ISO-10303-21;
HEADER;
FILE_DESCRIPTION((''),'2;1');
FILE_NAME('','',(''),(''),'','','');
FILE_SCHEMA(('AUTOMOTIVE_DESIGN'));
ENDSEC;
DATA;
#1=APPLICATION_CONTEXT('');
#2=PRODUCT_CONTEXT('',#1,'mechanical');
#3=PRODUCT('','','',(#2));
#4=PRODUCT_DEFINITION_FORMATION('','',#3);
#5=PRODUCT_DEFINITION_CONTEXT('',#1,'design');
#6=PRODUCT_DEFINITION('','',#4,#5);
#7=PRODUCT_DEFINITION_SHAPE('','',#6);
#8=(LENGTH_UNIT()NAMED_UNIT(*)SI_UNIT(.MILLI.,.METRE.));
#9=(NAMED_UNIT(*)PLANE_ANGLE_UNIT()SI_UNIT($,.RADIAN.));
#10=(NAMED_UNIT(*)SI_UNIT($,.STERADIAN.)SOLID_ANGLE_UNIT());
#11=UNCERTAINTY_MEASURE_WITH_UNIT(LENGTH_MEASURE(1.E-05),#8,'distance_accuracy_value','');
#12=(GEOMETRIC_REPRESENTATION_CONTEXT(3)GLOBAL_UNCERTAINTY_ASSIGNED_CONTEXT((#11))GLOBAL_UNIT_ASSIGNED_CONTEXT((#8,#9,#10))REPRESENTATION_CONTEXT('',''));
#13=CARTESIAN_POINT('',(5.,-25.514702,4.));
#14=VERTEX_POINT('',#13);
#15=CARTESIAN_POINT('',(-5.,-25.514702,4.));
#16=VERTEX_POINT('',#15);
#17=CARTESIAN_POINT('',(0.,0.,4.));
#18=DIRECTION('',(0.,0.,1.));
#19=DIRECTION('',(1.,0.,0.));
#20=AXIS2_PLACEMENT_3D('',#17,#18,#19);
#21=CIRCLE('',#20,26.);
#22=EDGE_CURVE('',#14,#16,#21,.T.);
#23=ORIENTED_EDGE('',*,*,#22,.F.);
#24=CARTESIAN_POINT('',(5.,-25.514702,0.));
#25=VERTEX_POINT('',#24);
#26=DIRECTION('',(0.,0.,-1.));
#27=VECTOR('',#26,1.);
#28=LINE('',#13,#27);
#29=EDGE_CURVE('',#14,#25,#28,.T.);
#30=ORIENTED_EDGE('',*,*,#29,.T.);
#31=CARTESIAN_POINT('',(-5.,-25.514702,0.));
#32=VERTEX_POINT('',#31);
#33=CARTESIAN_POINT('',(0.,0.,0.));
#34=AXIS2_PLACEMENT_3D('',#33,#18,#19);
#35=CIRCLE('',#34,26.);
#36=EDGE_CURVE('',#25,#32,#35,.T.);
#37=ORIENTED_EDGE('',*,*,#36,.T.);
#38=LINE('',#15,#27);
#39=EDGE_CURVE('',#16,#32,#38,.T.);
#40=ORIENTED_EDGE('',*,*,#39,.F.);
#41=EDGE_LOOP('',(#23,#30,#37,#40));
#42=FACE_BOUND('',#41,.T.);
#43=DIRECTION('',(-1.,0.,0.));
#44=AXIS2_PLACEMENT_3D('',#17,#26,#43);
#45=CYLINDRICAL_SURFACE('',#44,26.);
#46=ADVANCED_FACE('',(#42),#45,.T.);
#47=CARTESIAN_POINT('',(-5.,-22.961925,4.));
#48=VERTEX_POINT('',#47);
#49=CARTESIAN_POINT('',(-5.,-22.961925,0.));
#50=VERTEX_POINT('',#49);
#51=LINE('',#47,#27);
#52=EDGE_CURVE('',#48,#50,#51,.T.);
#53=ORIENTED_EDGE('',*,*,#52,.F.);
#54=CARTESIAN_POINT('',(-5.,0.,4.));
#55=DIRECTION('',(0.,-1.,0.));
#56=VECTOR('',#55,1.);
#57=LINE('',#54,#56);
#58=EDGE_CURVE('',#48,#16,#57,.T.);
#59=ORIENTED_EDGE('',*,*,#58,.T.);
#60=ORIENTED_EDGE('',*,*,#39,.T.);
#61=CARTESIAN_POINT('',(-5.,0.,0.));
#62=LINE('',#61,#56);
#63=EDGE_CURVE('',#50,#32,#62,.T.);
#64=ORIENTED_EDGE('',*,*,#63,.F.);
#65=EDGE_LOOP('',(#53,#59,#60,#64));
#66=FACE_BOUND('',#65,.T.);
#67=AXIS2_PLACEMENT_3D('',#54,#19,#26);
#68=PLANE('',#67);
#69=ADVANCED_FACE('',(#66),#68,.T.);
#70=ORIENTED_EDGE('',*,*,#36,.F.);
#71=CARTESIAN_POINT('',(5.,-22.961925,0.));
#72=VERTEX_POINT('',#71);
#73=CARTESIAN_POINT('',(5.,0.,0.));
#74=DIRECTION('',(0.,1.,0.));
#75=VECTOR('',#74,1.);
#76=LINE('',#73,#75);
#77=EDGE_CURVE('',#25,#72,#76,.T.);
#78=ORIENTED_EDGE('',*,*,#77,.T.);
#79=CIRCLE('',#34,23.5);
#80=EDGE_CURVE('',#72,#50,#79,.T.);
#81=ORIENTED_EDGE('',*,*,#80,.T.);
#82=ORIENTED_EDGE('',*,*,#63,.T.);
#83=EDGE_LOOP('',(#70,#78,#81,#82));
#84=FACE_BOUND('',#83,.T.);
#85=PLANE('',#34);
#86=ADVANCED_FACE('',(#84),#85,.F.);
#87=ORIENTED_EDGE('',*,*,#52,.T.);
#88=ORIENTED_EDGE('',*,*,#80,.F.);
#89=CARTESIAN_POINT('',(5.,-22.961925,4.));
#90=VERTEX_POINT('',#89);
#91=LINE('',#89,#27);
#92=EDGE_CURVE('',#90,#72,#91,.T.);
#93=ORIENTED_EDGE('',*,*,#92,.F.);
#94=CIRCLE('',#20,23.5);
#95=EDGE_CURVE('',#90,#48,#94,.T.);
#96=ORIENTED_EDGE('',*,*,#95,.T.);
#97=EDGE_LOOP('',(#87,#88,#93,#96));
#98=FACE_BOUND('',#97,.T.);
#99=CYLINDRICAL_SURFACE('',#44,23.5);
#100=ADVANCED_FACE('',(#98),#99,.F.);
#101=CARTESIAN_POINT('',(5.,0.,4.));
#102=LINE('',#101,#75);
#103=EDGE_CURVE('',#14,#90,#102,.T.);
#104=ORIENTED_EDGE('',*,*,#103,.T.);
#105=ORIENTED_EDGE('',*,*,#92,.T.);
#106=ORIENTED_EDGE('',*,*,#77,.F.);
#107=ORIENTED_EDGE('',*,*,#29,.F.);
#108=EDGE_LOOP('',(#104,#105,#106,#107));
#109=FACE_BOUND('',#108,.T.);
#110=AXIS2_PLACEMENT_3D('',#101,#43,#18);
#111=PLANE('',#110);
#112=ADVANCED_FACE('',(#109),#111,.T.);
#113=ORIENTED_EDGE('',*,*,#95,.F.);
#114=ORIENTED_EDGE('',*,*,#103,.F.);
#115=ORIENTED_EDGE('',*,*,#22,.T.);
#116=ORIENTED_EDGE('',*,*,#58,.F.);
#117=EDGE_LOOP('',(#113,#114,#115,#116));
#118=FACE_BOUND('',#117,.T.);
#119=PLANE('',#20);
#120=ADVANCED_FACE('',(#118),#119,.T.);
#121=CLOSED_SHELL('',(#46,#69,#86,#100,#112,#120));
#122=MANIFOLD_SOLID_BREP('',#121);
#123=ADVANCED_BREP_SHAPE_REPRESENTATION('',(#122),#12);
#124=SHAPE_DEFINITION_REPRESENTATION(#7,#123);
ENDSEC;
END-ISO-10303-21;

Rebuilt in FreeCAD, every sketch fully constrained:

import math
import FreeCAD as App
import Part
import Sketcher
Q = App.Units.Quantity

doc = App.newDocument("Part")
body = doc.addObject("PartDesign::Body", "Body")

# Sketch on XY plane
sketch1 = body.newObject("Sketcher::SketchObject", "Sketch")
sketch1.AttachmentSupport = (doc.getObject("XY_Plane"), [""])
sketch1.MapMode = "FlatFace"
sketch1.addGeometry(Part.LineSegment(App.Vector(-5, -25.5, 0), App.Vector(-5, -23, 0)), False)
sketch1.addGeometry(Part.ArcOfCircle(Part.Circle(App.Vector(0, 0, 0), App.Vector(0, 0, 1), 23.5), math.radians(0), math.radians(258)), False)
sketch1.addGeometry(Part.ArcOfCircle(Part.Circle(App.Vector(0, 0, 0), App.Vector(0, 0, 1), 23.5), math.radians(-78), math.radians(0)), False)
sketch1.addGeometry(Part.LineSegment(App.Vector(5, -23, 0), App.Vector(5, -25.5, 0)), False)
sketch1.addGeometry(Part.ArcOfCircle(Part.Circle(App.Vector(0, 0, 0), App.Vector(0, 0, 1), 26), math.radians(-79), math.radians(0)), False)
sketch1.addGeometry(Part.ArcOfCircle(Part.Circle(App.Vector(0, 0, 0), App.Vector(0, 0, 1), 26), math.radians(0), math.radians(259)), False)
sketch1.addConstraint(Sketcher.Constraint("Coincident", 0, 2, 1, 2))
sketch1.addConstraint(Sketcher.Constraint("Tangent", 1, 1, 2, 2))
sketch1.addConstraint(Sketcher.Constraint("Coincident", 2, 1, 3, 1))
sketch1.addConstraint(Sketcher.Constraint("Coincident", 3, 2, 4, 1))
sketch1.addConstraint(Sketcher.Constraint("Tangent", 4, 2, 5, 1))
sketch1.addConstraint(Sketcher.Constraint("Coincident", 5, 2, 0, 1))
sketch1.addConstraint(Sketcher.Constraint("Vertical", 0))
sketch1.addConstraint(Sketcher.Constraint("Vertical", 3))
sketch1.addConstraint(Sketcher.Constraint("Coincident", 1, 3, -1, 1))
sketch1.addConstraint(Sketcher.Constraint("Coincident", 4, 3, -1, 1))
sketch1.addConstraint(Sketcher.Constraint("Equal", 1, 2))
sketch1.addConstraint(Sketcher.Constraint("Equal", 4, 5))
sketch1.addConstraint(Sketcher.Constraint("PointOnObject", 1, 1, -1))
sketch1.addConstraint(Sketcher.Constraint("PointOnObject", 4, 2, -1))
sketch1.addConstraint(Sketcher.Constraint("Horizontal", 0, 2, 2, 1))
sketch1.addConstraint(Sketcher.Constraint("Radius", 4, Q("26 mm")))
sketch1.addConstraint(Sketcher.Constraint("Radius", 1, Q("23.5 mm")))
sketch1.addConstraint(Sketcher.Constraint("DistanceX", 0, 2, -1, 1, Q("5 mm")))
pad1 = body.newObject("PartDesign::Pad", "Pad")
pad1.Profile = sketch1
pad1.Length = 4

doc.recompute()
